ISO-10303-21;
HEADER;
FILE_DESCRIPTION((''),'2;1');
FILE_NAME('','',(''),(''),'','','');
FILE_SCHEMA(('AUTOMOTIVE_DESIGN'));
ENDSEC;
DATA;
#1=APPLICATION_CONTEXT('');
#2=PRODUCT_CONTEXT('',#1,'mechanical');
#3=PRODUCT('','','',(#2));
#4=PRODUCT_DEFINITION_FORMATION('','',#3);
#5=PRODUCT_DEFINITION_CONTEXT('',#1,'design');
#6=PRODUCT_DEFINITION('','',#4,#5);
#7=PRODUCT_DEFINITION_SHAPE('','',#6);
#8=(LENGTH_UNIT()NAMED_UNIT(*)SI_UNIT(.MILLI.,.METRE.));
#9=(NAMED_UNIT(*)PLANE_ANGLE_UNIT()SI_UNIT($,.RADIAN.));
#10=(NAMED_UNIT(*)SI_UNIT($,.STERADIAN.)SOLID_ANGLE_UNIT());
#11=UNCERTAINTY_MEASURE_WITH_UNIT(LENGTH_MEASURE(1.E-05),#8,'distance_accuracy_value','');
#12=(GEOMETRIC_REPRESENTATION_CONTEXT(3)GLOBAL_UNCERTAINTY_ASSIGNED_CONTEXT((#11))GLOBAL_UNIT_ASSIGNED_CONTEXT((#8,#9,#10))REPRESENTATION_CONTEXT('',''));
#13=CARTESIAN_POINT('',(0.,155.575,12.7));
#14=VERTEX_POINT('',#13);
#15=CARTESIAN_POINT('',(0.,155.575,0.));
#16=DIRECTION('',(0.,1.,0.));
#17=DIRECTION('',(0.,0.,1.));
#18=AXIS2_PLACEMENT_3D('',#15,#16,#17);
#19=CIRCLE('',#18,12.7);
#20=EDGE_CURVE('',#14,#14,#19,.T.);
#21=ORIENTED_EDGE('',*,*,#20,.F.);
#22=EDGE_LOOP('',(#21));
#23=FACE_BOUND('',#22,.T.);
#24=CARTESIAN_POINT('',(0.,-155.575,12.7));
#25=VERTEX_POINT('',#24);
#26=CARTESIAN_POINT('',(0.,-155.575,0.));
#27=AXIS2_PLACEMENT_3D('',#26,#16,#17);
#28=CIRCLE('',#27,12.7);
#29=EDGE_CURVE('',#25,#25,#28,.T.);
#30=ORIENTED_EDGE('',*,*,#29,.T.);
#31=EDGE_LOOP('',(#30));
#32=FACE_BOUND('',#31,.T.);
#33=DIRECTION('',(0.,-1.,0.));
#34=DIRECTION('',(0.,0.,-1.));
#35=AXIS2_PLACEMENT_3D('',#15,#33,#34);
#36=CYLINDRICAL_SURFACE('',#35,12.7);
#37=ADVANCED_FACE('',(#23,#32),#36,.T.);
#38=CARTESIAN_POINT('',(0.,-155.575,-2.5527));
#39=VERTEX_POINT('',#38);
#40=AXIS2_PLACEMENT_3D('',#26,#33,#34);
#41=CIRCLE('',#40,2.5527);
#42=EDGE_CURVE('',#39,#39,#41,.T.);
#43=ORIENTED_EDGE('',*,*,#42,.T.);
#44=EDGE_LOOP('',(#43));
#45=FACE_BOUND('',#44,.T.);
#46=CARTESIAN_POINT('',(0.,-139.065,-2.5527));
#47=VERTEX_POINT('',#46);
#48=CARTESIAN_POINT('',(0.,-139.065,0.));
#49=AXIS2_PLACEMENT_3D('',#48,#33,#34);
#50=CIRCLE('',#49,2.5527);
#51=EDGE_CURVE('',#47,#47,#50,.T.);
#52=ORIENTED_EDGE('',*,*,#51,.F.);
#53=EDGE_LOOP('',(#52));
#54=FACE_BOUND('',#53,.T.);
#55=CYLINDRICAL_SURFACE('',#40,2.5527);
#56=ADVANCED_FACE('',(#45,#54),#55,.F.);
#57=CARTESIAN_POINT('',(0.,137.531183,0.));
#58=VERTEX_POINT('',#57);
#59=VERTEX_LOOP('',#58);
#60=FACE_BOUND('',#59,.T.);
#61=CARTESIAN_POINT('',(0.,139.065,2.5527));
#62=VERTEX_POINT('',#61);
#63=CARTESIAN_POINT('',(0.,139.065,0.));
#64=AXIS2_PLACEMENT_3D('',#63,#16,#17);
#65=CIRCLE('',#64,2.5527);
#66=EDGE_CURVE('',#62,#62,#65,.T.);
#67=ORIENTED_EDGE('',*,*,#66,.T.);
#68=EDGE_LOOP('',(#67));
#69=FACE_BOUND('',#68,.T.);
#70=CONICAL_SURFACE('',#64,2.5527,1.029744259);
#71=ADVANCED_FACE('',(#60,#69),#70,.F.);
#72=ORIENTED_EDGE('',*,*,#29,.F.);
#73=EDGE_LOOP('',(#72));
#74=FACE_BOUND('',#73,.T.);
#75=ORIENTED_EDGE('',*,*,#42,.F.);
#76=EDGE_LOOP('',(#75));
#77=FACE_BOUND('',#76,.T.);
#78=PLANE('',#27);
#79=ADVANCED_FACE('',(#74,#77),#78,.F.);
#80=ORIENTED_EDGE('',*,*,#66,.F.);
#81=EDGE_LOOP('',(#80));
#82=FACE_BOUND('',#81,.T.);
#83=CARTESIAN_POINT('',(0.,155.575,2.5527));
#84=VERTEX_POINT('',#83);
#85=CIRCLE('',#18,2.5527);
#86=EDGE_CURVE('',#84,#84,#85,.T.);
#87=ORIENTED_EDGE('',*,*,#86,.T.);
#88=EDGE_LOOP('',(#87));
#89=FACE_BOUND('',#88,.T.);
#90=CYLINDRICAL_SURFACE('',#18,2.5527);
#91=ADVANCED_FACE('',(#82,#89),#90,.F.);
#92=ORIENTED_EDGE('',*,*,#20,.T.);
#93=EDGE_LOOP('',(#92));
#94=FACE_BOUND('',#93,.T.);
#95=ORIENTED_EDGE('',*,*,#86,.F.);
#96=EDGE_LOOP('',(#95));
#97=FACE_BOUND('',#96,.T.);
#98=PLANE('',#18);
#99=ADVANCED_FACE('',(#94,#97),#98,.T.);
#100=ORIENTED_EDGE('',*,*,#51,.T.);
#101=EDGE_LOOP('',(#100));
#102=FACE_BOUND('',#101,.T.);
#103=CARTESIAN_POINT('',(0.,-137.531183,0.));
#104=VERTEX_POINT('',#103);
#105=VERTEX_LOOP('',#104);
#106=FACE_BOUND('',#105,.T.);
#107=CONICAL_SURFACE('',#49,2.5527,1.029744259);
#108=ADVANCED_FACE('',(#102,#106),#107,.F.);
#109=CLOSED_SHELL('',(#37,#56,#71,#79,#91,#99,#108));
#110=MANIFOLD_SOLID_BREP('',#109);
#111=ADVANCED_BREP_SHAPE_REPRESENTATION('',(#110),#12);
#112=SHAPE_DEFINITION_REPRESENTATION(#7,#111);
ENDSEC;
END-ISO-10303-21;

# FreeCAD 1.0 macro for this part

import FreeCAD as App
import Part
import Sketcher

V = App.Vector
Q = App.Units.Quantity

doc = App.newDocument("Part")
body = doc.addObject("PartDesign::Body", "Body")

# Sketch on XZ plane
sketch1 = body.newObject("Sketcher::SketchObject", "Sketch")
sketch1.AttachmentSupport = (doc.getObject("XZ_Plane"), [""])
sketch1.MapMode = "FlatFace"
sketch1.addGeometry(Part.Circle(V(0, 0, 0), V(0, 0, 1), 13), False)
sketch1.addConstraint([
    Sketcher.Constraint("Coincident", 0, 3, -1, 1),
    Sketcher.Constraint("Diameter", 0, Q("1 in")),
])
pad1 = body.newObject("PartDesign::Pad", "Pad")
pad1.Profile = sketch1
pad1.Length = Q("12.25 in")
pad1.Midplane = True

# Sketch on XZ plane
sketch2 = body.newObject("Sketcher::SketchObject", "Sketch001")
sketch2.AttachmentSupport = (doc.getObject("XZ_Plane"), [""])
sketch2.MapMode = "FlatFace"
sketch2.AttachmentOffset = App.Placement(V(0, 0, -6.125 * 25.4), App.Rotation())
sketch2.addGeometry(Part.Circle(V(0, 0, 0), V(0, 0, 1), 2.6), False)
sketch2.addConstraint([
    Sketcher.Constraint("Coincident", 0, 3, -1, 1),
    Sketcher.Constraint("Diameter", 0, Q("0.201 in")),
])
doc.recompute()
hole = body.newObject("PartDesign::Hole", "Hole")
hole.Profile = sketch2
hole.ThreadType = "None"
hole.Diameter = Q("0.201 in")
hole.DepthType = "Dimension"
hole.Depth = Q("0.65 in")
hole.DrillPoint = "Angled"
hole.DrillPointAngle = 118
hole.Reversed = True

# Sketch on XZ plane
sketch3 = body.newObject("Sketcher::SketchObject", "Sketch002")
sketch3.AttachmentSupport = (doc.getObject("XZ_Plane"), [""])
sketch3.MapMode = "FlatFace"
sketch3.AttachmentOffset = App.Placement(V(0, 0, 6.125 * 25.4), App.Rotation())
sketch3.addGeometry(Part.Circle(V(0, 0, 0), V(0, 0, 1), 2.6), False)
sketch3.addConstraint([
    Sketcher.Constraint("Coincident", 0, 3, -1, 1),
    Sketcher.Constraint("Diameter", 0, Q("0.201 in")),
])
doc.recompute()
hole2 = body.newObject("PartDesign::Hole", "Hole001")
hole2.Profile = sketch3
hole2.ThreadType = "None"
hole2.Diameter = Q("0.201 in")
hole2.DepthType = "Dimension"
hole2.Depth = Q("0.65 in")
hole2.DrillPoint = "Angled"
hole2.DrillPointAngle = 118

doc.recompute()
